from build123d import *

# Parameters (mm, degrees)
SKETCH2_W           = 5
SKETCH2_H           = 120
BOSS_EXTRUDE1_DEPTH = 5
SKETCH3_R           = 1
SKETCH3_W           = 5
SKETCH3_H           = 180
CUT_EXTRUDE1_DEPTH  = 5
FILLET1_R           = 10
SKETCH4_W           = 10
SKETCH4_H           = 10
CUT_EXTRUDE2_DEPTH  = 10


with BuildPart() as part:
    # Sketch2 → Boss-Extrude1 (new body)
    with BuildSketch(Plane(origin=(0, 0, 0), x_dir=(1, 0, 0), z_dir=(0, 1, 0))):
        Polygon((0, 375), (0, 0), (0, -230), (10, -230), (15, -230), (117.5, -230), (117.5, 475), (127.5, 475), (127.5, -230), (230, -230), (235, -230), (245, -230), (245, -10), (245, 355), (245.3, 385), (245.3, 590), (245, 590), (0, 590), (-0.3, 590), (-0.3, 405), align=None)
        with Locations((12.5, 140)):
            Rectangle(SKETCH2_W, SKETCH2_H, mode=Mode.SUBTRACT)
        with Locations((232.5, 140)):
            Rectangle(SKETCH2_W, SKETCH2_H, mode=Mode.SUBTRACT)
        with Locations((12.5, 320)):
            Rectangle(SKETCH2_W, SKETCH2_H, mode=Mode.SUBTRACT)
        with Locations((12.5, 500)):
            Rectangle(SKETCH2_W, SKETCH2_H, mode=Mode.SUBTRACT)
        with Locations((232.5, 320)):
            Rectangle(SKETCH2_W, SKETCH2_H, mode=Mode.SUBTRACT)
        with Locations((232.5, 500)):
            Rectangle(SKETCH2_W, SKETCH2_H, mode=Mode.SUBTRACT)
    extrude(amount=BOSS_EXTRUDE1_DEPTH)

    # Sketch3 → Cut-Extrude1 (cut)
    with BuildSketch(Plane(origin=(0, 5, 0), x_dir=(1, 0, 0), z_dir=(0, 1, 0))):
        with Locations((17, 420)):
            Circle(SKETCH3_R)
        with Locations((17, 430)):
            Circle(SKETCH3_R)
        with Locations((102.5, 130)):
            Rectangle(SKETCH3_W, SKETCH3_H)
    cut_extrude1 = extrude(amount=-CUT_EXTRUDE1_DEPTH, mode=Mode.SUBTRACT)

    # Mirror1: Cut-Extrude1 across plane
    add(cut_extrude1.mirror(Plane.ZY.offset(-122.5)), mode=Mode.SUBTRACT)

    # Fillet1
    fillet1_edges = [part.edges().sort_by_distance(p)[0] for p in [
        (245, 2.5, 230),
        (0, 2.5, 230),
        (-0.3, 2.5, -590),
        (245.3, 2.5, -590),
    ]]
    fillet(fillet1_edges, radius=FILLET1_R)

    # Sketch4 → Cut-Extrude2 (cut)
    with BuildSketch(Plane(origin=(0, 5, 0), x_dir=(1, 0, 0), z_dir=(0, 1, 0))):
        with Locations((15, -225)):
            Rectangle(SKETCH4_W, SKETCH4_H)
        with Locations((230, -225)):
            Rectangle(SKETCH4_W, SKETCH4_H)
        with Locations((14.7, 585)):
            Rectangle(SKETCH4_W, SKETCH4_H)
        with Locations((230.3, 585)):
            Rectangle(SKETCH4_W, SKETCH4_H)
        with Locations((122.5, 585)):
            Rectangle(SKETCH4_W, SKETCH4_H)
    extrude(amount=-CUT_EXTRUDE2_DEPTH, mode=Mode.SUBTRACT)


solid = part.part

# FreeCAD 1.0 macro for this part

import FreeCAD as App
import Part
import Sketcher
from FreeCAD import Vector


def edges_at(feature, points):
    """Names of the edges that pass closest to the given points."""
    edges = feature.Shape.Edges
    near = lambda p: min(range(len(edges)), key=lambda i: edges[i].distToShape(Part.Vertex(*p))[0])
    return sorted({f"Edge{near(p) + 1}" for p in points})

doc = App.newDocument("Part")
params = doc.addObject("Spreadsheet::Sheet", "Params")
for row, (alias, value) in enumerate([
    ("sketch1_width", "10 mm"),
    ("sketch1_width2", "5 mm"),
    ("sketch1_height", "605 mm"),
    ("sketch1_height2", "705 mm"),
    ("sketch1_height3", "585 mm"),
    ("pad1_length", "5 mm"),
    ("sketch2_diameter", "2 mm"),
    ("sketch2_width", "5 mm"),
    ("sketch2_height", "180 mm"),
    ("pocket1_length", "5 mm"),
    ("fillet_radius", "10 mm"),
    ("sketch3_width", "10 mm"),
    ("pocket2_length", "10 mm"),
], start=1):
    params.set(f"A{row}", alias)
    params.set(f"B{row}", "=" + value)
    params.setAlias(f"B{row}", alias)

body = doc.addObject("PartDesign::Body", "Body")

# Sketch on XZ plane
sketch1 = doc.addObject("Sketcher::SketchObject", "Sketch")
body.addObject(sketch1)
sketch1.AttachmentSupport = (doc.XZ_Plane, [""])
sketch1.MapMode = "FlatFace"
sketch1.addGeometry([
    Part.LineSegment(Vector(0, -375, 0), Vector(0, 230, 0)),  # 0
    Part.LineSegment(Vector(0, 230, 0), Vector(117.5, 230, 0)),  # 1
    Part.LineSegment(Vector(117.5, 230, 0), Vector(117.5, -475, 0)),  # 2
    Part.LineSegment(Vector(117.5, -475, 0), Vector(127.5, -475, 0)),  # 3
    Part.LineSegment(Vector(127.5, -475, 0), Vector(127.5, 230, 0)),  # 4
    Part.LineSegment(Vector(127.5, 230, 0), Vector(245, 230, 0)),  # 5
    Part.LineSegment(Vector(245, 230, 0), Vector(245, -355, 0)),  # 6
    Part.LineSegment(Vector(245, -355, 0), Vector(245.3, -385, 0)),  # 7
    Part.LineSegment(Vector(245.3, -385, 0), Vector(245.3, -590, 0)),  # 8
    Part.LineSegment(Vector(245.3, -590, 0), Vector(-0.3, -590, 0)),  # 9
    Part.LineSegment(Vector(-0.3, -590, 0), Vector(-0.3, -405, 0)),  # 10
    Part.LineSegment(Vector(-0.3, -405, 0), Vector(0, -375, 0)),  # 11
    Part.LineSegment(Vector(15, -80, 0), Vector(10, -80, 0)),  # 12
    Part.LineSegment(Vector(10, -80, 0), Vector(10, -200, 0)),  # 13
    Part.LineSegment(Vector(10, -200, 0), Vector(15, -200, 0)),  # 14
    Part.LineSegment(Vector(15, -200, 0), Vector(15, -80, 0)),  # 15
    Part.LineSegment(Vector(235, -80, 0), Vector(230, -80, 0)),  # 16
    Part.LineSegment(Vector(230, -80, 0), Vector(230, -200, 0)),  # 17
    Part.LineSegment(Vector(230, -200, 0), Vector(235, -200, 0)),  # 18
    Part.LineSegment(Vector(235, -200, 0), Vector(235, -80, 0)),  # 19
    Part.LineSegment(Vector(15, -260, 0), Vector(10, -260, 0)),  # 20
    Part.LineSegment(Vector(10, -260, 0), Vector(10, -380, 0)),  # 21
    Part.LineSegment(Vector(10, -380, 0), Vector(15, -380, 0)),  # 22
    Part.LineSegment(Vector(15, -380, 0), Vector(15, -260, 0)),  # 23
    Part.LineSegment(Vector(15, -440, 0), Vector(10, -440, 0)),  # 24
    Part.LineSegment(Vector(10, -440, 0), Vector(10, -560, 0)),  # 25
    Part.LineSegment(Vector(10, -560, 0), Vector(15, -560, 0)),  # 26
    Part.LineSegment(Vector(15, -560, 0), Vector(15, -440, 0)),  # 27
    Part.LineSegment(Vector(235, -260, 0), Vector(230, -260, 0)),  # 28
    Part.LineSegment(Vector(230, -260, 0), Vector(230, -380, 0)),  # 29
    Part.LineSegment(Vector(230, -380, 0), Vector(235, -380, 0)),  # 30
    Part.LineSegment(Vector(235, -380, 0), Vector(235, -260, 0)),  # 31
    Part.LineSegment(Vector(235, -440, 0), Vector(230, -440, 0)),  # 32
    Part.LineSegment(Vector(230, -440, 0), Vector(230, -560, 0)),  # 33
    Part.LineSegment(Vector(230, -560, 0), Vector(235, -560, 0)),  # 34
    Part.LineSegment(Vector(235, -560, 0), Vector(235, -440, 0)),  # 35
], False)
sketch1.addConstraint([
    Sketcher.Constraint("Coincident", 0, 2, 1, 1),
    Sketcher.Constraint("Coincident", 1, 2, 2, 1),
    Sketcher.Constraint("Coincident", 2, 2, 3, 1),
    Sketcher.Constraint("Coincident", 3, 2, 4, 1),
    Sketcher.Constraint("Coincident", 4, 2, 5, 1),
    Sketcher.Constraint("Coincident", 5, 2, 6, 1),
    Sketcher.Constraint("Coincident", 6, 2, 7, 1),
    Sketcher.Constraint("Coincident", 7, 2, 8, 1),
    Sketcher.Constraint("Coincident", 8, 2, 9, 1),
    Sketcher.Constraint("Coincident", 9, 2, 10, 1),
    Sketcher.Constraint("Coincident", 10, 2, 11, 1),
    Sketcher.Constraint("Coincident", 11, 2, 0, 1),
    Sketcher.Constraint("Coincident", 12, 2, 13, 1),
    Sketcher.Constraint("Coincident", 13, 2, 14, 1),
    Sketcher.Constraint("Coincident", 14, 2, 15, 1),
    Sketcher.Constraint("Coincident", 15, 2, 12, 1),
    Sketcher.Constraint("Coincident", 16, 2, 17, 1),
    Sketcher.Constraint("Coincident", 17, 2, 18, 1),
    Sketcher.Constraint("Coincident", 18, 2, 19, 1),
    Sketcher.Constraint("Coincident", 19, 2, 16, 1),
    Sketcher.Constraint("Coincident", 20, 2, 21, 1),
    Sketcher.Constraint("Coincident", 21, 2, 22, 1),
    Sketcher.Constraint("Coincident", 22, 2, 23, 1),
    Sketcher.Constraint("Coincident", 23, 2, 20, 1),
    Sketcher.Constraint("Coincident", 24, 2, 25, 1),
    Sketcher.Constraint("Coincident", 25, 2, 26, 1),
    Sketcher.Constraint("Coincident", 26, 2, 27, 1),
    Sketcher.Constraint("Coincident", 27, 2, 24, 1),
    Sketcher.Constraint("Coincident", 28, 2, 29, 1),
    Sketcher.Constraint("Coincident", 29, 2, 30, 1),
    Sketcher.Constraint("Coincident", 30, 2, 31, 1),
    Sketcher.Constraint("Coincident", 31, 2, 28, 1),
    Sketcher.Constraint("Coincident", 32, 2, 33, 1),
    Sketcher.Constraint("Coincident", 33, 2, 34, 1),
    Sketcher.Constraint("Coincident", 34, 2, 35, 1),
    Sketcher.Constraint("Coincident", 35, 2, 32, 1),
    Sketcher.Constraint("Vertical", 0),
    Sketcher.Constraint("Horizontal", 1),
    Sketcher.Constraint("Vertical", 2),
    Sketcher.Constraint("Horizontal", 3),
    Sketcher.Constraint("Vertical", 4),
    Sketcher.Constraint("Horizontal", 5),
    Sketcher.Constraint("Vertical", 6),
    Sketcher.Constraint("Vertical", 8),
    Sketcher.Constraint("Horizontal", 9),
    Sketcher.Constraint("Vertical", 10),
    Sketcher.Constraint("Horizontal", 12),
    Sketcher.Constraint("Vertical", 13),
    Sketcher.Constraint("Horizontal", 14),
    Sketcher.Constraint("Vertical", 15),
    Sketcher.Constraint("Horizontal", 16),
    Sketcher.Constraint("Vertical", 17),
    Sketcher.Constraint("Horizontal", 18),
    Sketcher.Constraint("Vertical", 19),
    Sketcher.Constraint("Horizontal", 20),
    Sketcher.Constraint("Vertical", 21),
    Sketcher.Constraint("Horizontal", 22),
    Sketcher.Constraint("Vertical", 23),
    Sketcher.Constraint("Horizontal", 24),
    Sketcher.Constraint("Vertical", 25),
    Sketcher.Constraint("Horizontal", 26),
    Sketcher.Constraint("Vertical", 27),
    Sketcher.Constraint("Horizontal", 28),
    Sketcher.Constraint("Vertical", 29),
    Sketcher.Constraint("Horizontal", 30),
    Sketcher.Constraint("Vertical", 31),
    Sketcher.Constraint("Horizontal", 32),
    Sketcher.Constraint("Vertical", 33),
    Sketcher.Constraint("Horizontal", 34),
    Sketcher.Constraint("Vertical", 35),
    Sketcher.Constraint("PointOnObject", 0, 2, -2),
    Sketcher.Constraint("Horizontal", 1, 2, 4, 2),
    Sketcher.Constraint("Horizontal", 15, 2, 16, 2),
    Sketcher.Constraint("Horizontal", 14, 2, 17, 2),
    Sketcher.Constraint("Horizontal", 23, 2, 28, 2),
    Sketcher.Constraint("Horizontal", 22, 2, 29, 2),
    Sketcher.Constraint("Horizontal", 27, 2, 32, 2),
    Sketcher.Constraint("Horizontal", 26, 2, 33, 2),
    Sketcher.Constraint("Vertical", 13, 2, 20, 2),
    Sketcher.Constraint("Vertical", 15, 2, 22, 2),
    Sketcher.Constraint("Vertical", 21, 2, 24, 2),
    Sketcher.Constraint("Vertical", 23, 2, 26, 2),
    Sketcher.Constraint("Vertical", 17, 2, 28, 2),
    Sketcher.Constraint("Vertical", 19, 2, 30, 2),
    Sketcher.Constraint("Vertical", 29, 2, 32, 2),
    Sketcher.Constraint("Vertical", 31, 2, 34, 2),
    Sketcher.Constraint("Equal", 1, 5),
    Sketcher.Constraint("Equal", 14, 16),
    Sketcher.Constraint("Equal", 19, 21),
    Sketcher.Constraint("Equal", 23, 25),
    Sketcher.Constraint("Equal", 7, 11),
    Sketcher.Constraint("DistanceX", 3, 1, 3, 2, 10.0),
    Sketcher.Constraint("DistanceX", 12, 2, 12, 1, 5.0),
    Sketcher.Constraint("DistanceY", 0, 1, 0, 2, 605.0),
    Sketcher.Constraint("DistanceY", 2, 2, 2, 1, 705.0),
    Sketcher.Constraint("DistanceY", 6, 2, 6, 1, 585.0),
    Sketcher.Constraint("DistanceY", 8, 2, 8, 1, 205.0),
    Sketcher.Constraint("DistanceY", 10, 1, 10, 2, 185.0),
    Sketcher.Constraint("DistanceY", 13, 2, 13, 1, 120.0),
    Sketcher.Constraint("DistanceX", 1, 1, 1, 2, 117.5),
    Sketcher.Constraint("DistanceX", 9, 2, 9, 1, 245.6),
    Sketcher.Constraint("DistanceY", -1, 1, 0, 2, 230.0),
    Sketcher.Constraint("DistanceY", 7, 2, -1, 1, 385.0),
    Sketcher.Constraint("DistanceX", -1, 1, 12, 2, 10.0),
    Sketcher.Constraint("DistanceY", 12, 2, -1, 1, 80.0),
    Sketcher.Constraint("DistanceX", -1, 1, 16, 2, 230.0),
    Sketcher.Constraint("DistanceY", 20, 2, -1, 1, 260.0),
    Sketcher.Constraint("DistanceY", 24, 2, -1, 1, 440.0),
])
sketch1.setExpression("Constraints[91]", "Params.sketch1_width")
sketch1.setExpression("Constraints[92]", "Params.sketch1_width2")
sketch1.setExpression("Constraints[93]", "Params.sketch1_height")
sketch1.setExpression("Constraints[94]", "Params.sketch1_height2")
sketch1.setExpression("Constraints[95]", "Params.sketch1_height3")
pad1 = doc.addObject("PartDesign::Pad", "Pad")
body.addObject(pad1)
pad1.Profile = sketch1
pad1.setExpression("Length", "Params.pad1_length")
pad1.Reversed = True

# Sketch on XZ plane
sketch2 = doc.addObject("Sketcher::SketchObject", "Sketch001")
body.addObject(sketch2)
sketch2.AttachmentSupport = (doc.XZ_Plane, [""])
sketch2.MapMode = "FlatFace"
sketch2.AttachmentOffset = App.Placement(Vector(0, 0, -5), App.Rotation())
sketch2.addGeometry([
    Part.Circle(Vector(17, -420, 0), Vector(0, 0, 1), 1),  # 0
    Part.Circle(Vector(17, -430, 0), Vector(0, 0, 1), 1),  # 1
    Part.LineSegment(Vector(100, -220, 0), Vector(100, -40, 0)),  # 2
    Part.LineSegment(Vector(100, -40, 0), Vector(105, -40, 0)),  # 3
    Part.LineSegment(Vector(105, -40, 0), Vector(105, -220, 0)),  # 4
    Part.LineSegment(Vector(105, -220, 0), Vector(100, -220, 0)),  # 5
], False)
sketch2.addConstraint([
    Sketcher.Constraint("Coincident", 2, 2, 3, 1),
    Sketcher.Constraint("Coincident", 3, 2, 4, 1),
    Sketcher.Constraint("Coincident", 4, 2, 5, 1),
    Sketcher.Constraint("Coincident", 5, 2, 2, 1),
    Sketcher.Constraint("Vertical", 2),
    Sketcher.Constraint("Horizontal", 3),
    Sketcher.Constraint("Vertical", 4),
    Sketcher.Constraint("Horizontal", 5),
    Sketcher.Constraint("Equal", 0, 1),
    Sketcher.Constraint("Vertical", 0, 3, 1, 3),
    Sketcher.Constraint("Diameter", 0, 2.0),
    Sketcher.Constraint("DistanceX", 3, 1, 3, 2, 5.0),
    Sketcher.Constraint("DistanceY", 2, 1, 2, 2, 180.0),
    Sketcher.Constraint("DistanceX", -1, 1, 0, 3, 17.0),
    Sketcher.Constraint("DistanceY", 0, 3, -1, 1, 420.0),
    Sketcher.Constraint("DistanceY", 1, 3, -1, 1, 430.0),
    Sketcher.Constraint("DistanceX", -1, 1, 2, 2, 100.0),
    Sketcher.Constraint("DistanceY", 2, 2, -1, 1, 40.0),
])
sketch2.setExpression("Constraints[10]", "Params.sketch2_diameter")
sketch2.setExpression("Constraints[11]", "Params.sketch2_width")
sketch2.setExpression("Constraints[12]", "Params.sketch2_height")
pocket1 = doc.addObject("PartDesign::Pocket", "Pocket")
body.addObject(pocket1)
pocket1.Profile = sketch2
pocket1.setExpression("Length", "Params.pocket1_length")
pocket1.Reversed = True
doc.recompute()

datumplane = doc.addObject("PartDesign::Plane", "DatumPlane")
body.addObject(datumplane)
datumplane.AttachmentSupport = (doc.YZ_Plane, [""])
datumplane.MapMode = "FlatFace"
datumplane.AttachmentOffset = App.Placement(Vector(0, 0, 122.5), App.Rotation())
mirrored = doc.addObject("PartDesign::Mirrored", "Mirrored")
body.addObject(mirrored)
mirrored.Originals = [pocket1]
mirrored.MirrorPlane = (datumplane, [""])
body.Tip = mirrored
doc.recompute()

fillet = doc.addObject("PartDesign::Fillet", "Fillet")
body.addObject(fillet)
fillet.Base = (mirrored, edges_at(mirrored, [
    (245, 2.5, 230),
    (0, 2.5, 230),
    (-0.3, 2.5, -590),
    (245.3, 2.5, -590),
]))
fillet.setExpression("Radius", "Params.fillet_radius")

# Sketch on XZ plane
sketch3 = doc.addObject("Sketcher::SketchObject", "Sketch002")
body.addObject(sketch3)
sketch3.AttachmentSupport = (doc.XZ_Plane, [""])
sketch3.MapMode = "FlatFace"
sketch3.AttachmentOffset = App.Placement(Vector(0, 0, -5), App.Rotation())
sketch3.addGeometry([
    Part.LineSegment(Vector(10, 220, 0), Vector(10, 230, 0)),  # 0
    Part.LineSegment(Vector(10, 230, 0), Vector(20, 230, 0)),  # 1
    Part.LineSegment(Vector(20, 230, 0), Vector(20, 220, 0)),  # 2
    Part.LineSegment(Vector(20, 220, 0), Vector(10, 220, 0)),  # 3
    Part.LineSegment(Vector(225, 220, 0), Vector(225, 230, 0)),  # 4
    Part.LineSegment(Vector(225, 230, 0), Vector(235, 230, 0)),  # 5
    Part.LineSegment(Vector(235, 230, 0), Vector(235, 220, 0)),  # 6
    Part.LineSegment(Vector(235, 220, 0), Vector(225, 220, 0)),  # 7
    Part.LineSegment(Vector(10, -590, 0), Vector(10, -580, 0)),  # 8
    Part.LineSegment(Vector(10, -580, 0), Vector(20, -580, 0)),  # 9
    Part.LineSegment(Vector(20, -580, 0), Vector(20, -590, 0)),  # 10
    Part.LineSegment(Vector(20, -590, 0), Vector(10, -590, 0)),  # 11
    Part.LineSegment(Vector(225, -590, 0), Vector(225, -580, 0)),  # 12
    Part.LineSegment(Vector(225, -580, 0), Vector(235, -580, 0)),  # 13
    Part.LineSegment(Vector(235, -580, 0), Vector(235, -590, 0)),  # 14
    Part.LineSegment(Vector(235, -590, 0), Vector(225, -590, 0)),  # 15
    Part.LineSegment(Vector(118, -590, 0), Vector(118, -580, 0)),  # 16
    Part.LineSegment(Vector(118, -580, 0), Vector(128, -580, 0)),  # 17
    Part.LineSegment(Vector(128, -580, 0), Vector(128, -590, 0)),  # 18
    Part.LineSegment(Vector(128, -590, 0), Vector(118, -590, 0)),  # 19
], False)
sketch3.addConstraint([
    Sketcher.Constraint("Coincident", 0, 2, 1, 1),
    Sketcher.Constraint("Coincident", 1, 2, 2, 1),
    Sketcher.Constraint("Coincident", 2, 2, 3, 1),
    Sketcher.Constraint("Coincident", 3, 2, 0, 1),
    Sketcher.Constraint("Coincident", 4, 2, 5, 1),
    Sketcher.Constraint("Coincident", 5, 2, 6, 1),
    Sketcher.Constraint("Coincident", 6, 2, 7, 1),
    Sketcher.Constraint("Coincident", 7, 2, 4, 1),
    Sketcher.Constraint("Coincident", 8, 2, 9, 1),
    Sketcher.Constraint("Coincident", 9, 2, 10, 1),
    Sketcher.Constraint("Coincident", 10, 2, 11, 1),
    Sketcher.Constraint("Coincident", 11, 2, 8, 1),
    Sketcher.Constraint("Coincident", 12, 2, 13, 1),
    Sketcher.Constraint("Coincident", 13, 2, 14, 1),
    Sketcher.Constraint("Coincident", 14, 2, 15, 1),
    Sketcher.Constraint("Coincident", 15, 2, 12, 1),
    Sketcher.Constraint("Coincident", 16, 2, 17, 1),
    Sketcher.Constraint("Coincident", 17, 2, 18, 1),
    Sketcher.Constraint("Coincident", 18, 2, 19, 1),
    Sketcher.Constraint("Coincident", 19, 2, 16, 1),
    Sketcher.Constraint("Vertical", 0),
    Sketcher.Constraint("Horizontal", 1),
    Sketcher.Constraint("Vertical", 2),
    Sketcher.Constraint("Horizontal", 3),
    Sketcher.Constraint("Vertical", 4),
    Sketcher.Constraint("Horizontal", 5),
    Sketcher.Constraint("Vertical", 6),
    Sketcher.Constraint("Horizontal", 7),
    Sketcher.Constraint("Vertical", 8),
    Sketcher.Constraint("Horizontal", 9),
    Sketcher.Constraint("Vertical", 10),
    Sketcher.Constraint("Horizontal", 11),
    Sketcher.Constraint("Vertical", 12),
    Sketcher.Constraint("Horizontal", 13),
    Sketcher.Constraint("Vertical", 14),
    Sketcher.Constraint("Horizontal", 15),
    Sketcher.Constraint("Vertical", 16),
    Sketcher.Constraint("Horizontal", 17),
    Sketcher.Constraint("Vertical", 18),
    Sketcher.Constraint("Horizontal", 19),
    Sketcher.Constraint("Horizontal", 1, 2, 4, 2),
    Sketcher.Constraint("Horizontal", 3, 2, 6, 2),
    Sketcher.Constraint("Horizontal", 9, 2, 12, 2),
    Sketcher.Constraint("Horizontal", 11, 2, 14, 2),
    Sketcher.Constraint("Horizontal", 13, 2, 16, 2),
    Sketcher.Constraint("Horizontal", 15, 2, 18, 2),
    Sketcher.Constraint("Equal", 3, 5),
    Sketcher.Constraint("Equal", 7, 9),
    Sketcher.Constraint("Equal", 11, 13),
    Sketcher.Constraint("Equal", 15, 17),
    Sketcher.Constraint("Equal", 19, 0),
    Sketcher.Constraint("Equal", 6, 8),
    Sketcher.Constraint("DistanceX", 1, 1, 1, 2, 10.0),
    Sketcher.Constraint("DistanceX", -1, 1, 0, 2, 10.0),
    Sketcher.Constraint("DistanceY", -1, 1, 0, 2, 230.0),
    Sketcher.Constraint("DistanceX", -1, 1, 4, 2, 225.0),
    Sketcher.Constraint("DistanceY", 8, 2, -1, 1, 580.0),
    Sketcher.Constraint("DistanceX", -1, 1, 8, 2, 9.7),
    Sketcher.Constraint("DistanceX", -1, 1, 12, 2, 225.3),
    Sketcher.Constraint("DistanceX", -1, 1, 16, 2, 117.5),
])
sketch3.setExpression("Constraints[52]", "Params.sketch3_width")
pocket2 = doc.addObject("PartDesign::Pocket", "Pocket001")
body.addObject(pocket2)
pocket2.Profile = sketch3
pocket2.setExpression("Length", "Params.pocket2_length")
pocket2.Reversed = True

doc.recompute()
